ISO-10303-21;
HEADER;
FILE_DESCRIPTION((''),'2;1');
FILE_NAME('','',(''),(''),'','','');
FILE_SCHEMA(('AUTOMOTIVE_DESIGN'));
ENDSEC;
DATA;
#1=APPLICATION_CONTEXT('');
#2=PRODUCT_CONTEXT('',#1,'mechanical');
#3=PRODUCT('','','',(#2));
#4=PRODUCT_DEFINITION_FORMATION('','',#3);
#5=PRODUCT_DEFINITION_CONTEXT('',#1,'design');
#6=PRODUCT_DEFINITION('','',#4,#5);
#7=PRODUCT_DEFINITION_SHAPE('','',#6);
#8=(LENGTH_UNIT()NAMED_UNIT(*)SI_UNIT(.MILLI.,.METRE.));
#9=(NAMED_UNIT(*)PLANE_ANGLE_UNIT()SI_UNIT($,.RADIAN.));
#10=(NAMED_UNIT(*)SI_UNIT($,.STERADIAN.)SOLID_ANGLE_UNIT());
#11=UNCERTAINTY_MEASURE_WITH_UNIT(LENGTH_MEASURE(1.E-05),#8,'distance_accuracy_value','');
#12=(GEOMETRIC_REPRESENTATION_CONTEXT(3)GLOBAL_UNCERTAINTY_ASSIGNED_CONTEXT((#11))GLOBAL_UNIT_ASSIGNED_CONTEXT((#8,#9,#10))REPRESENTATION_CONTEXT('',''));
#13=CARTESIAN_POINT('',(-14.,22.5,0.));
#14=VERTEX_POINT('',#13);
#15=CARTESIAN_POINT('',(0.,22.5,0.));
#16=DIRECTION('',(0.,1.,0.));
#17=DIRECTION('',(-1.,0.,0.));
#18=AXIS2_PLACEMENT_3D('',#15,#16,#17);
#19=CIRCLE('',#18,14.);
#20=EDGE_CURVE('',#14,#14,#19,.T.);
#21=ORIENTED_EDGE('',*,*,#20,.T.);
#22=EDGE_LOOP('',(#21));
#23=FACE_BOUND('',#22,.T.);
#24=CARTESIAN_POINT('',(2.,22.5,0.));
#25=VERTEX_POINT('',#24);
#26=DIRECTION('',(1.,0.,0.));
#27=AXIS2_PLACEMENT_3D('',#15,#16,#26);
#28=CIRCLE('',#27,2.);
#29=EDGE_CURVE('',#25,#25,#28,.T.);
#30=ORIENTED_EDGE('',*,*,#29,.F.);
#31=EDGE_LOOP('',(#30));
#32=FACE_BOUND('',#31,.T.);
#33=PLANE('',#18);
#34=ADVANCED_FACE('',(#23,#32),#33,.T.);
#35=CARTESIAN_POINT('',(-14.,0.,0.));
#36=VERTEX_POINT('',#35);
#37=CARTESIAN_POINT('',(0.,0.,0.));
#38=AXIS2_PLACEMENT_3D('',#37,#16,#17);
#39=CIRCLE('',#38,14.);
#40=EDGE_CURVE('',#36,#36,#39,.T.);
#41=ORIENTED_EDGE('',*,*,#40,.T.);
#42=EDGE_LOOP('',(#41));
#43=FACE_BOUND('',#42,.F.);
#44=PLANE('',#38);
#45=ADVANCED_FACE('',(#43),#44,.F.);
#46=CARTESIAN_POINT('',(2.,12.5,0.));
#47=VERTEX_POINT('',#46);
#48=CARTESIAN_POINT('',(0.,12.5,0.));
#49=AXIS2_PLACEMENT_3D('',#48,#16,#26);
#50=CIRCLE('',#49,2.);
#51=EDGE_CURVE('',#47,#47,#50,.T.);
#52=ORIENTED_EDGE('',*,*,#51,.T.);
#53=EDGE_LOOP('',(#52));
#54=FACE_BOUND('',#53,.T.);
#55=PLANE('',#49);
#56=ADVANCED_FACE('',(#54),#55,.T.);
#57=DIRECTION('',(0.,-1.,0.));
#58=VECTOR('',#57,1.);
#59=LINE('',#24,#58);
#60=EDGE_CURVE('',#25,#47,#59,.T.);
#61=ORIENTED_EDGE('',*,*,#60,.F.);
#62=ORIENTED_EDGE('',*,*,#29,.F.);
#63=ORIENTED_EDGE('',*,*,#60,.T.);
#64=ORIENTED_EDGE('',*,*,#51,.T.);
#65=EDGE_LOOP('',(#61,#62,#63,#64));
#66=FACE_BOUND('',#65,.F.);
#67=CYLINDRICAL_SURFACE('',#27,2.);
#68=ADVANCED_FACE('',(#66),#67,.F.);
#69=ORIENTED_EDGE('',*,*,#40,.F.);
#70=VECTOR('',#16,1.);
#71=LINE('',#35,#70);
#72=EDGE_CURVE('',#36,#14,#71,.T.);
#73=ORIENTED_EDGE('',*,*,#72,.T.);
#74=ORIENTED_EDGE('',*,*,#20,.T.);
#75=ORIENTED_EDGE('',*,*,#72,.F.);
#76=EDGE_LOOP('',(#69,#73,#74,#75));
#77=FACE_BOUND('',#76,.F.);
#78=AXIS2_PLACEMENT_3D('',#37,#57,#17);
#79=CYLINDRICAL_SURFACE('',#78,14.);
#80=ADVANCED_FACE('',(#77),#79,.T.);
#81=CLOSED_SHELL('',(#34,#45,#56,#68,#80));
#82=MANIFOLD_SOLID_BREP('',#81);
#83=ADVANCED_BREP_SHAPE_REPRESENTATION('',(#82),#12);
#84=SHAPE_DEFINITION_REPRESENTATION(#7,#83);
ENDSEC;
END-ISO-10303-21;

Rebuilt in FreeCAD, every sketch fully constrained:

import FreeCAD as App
import Part
import Sketcher
from FreeCAD import Vector
Q = App.Units.Quantity

doc = App.newDocument("Part")
body = doc.addObject("PartDesign::Body", "Body")

# Sketch on XZ plane
sketch1 = body.newObject("Sketcher::SketchObject", "Sketch")
sketch1.AttachmentSupport = (doc.getObject("XZ_Plane"), [""])
sketch1.MapMode = "FlatFace"
sketch1.addGeometry(Part.Circle(Vector(0, 0, 0), Vector(0, 0, 1), 14), False)
sketch1.addConstraint([
    Sketcher.Constraint("Coincident", 0, 3, -1, 1),
    Sketcher.Constraint("Diameter", 0, Q("28 mm")),
])
pad1 = body.newObject("PartDesign::Pad", "Pad")
pad1.Profile = sketch1
pad1.Length = 22.5
pad1.Reversed = True

# Sketch on XZ plane
sketch2 = body.newObject("Sketcher::SketchObject", "Sketch001")
sketch2.AttachmentSupport = (doc.getObject("XZ_Plane"), [""])
sketch2.MapMode = "FlatFace"
sketch2.AttachmentOffset = App.Placement(Vector(0, 0, -22.5), App.Rotation())
sketch2.addGeometry(Part.Circle(Vector(0, 0, 0), Vector(0, 0, 1), 2), False)
sketch2.addConstraint([
    Sketcher.Constraint("Coincident", 0, 3, -1, 1),
    Sketcher.Constraint("Diameter", 0, Q("4 mm")),
])
pocket1 = body.newObject("PartDesign::Pocket", "Pocket")
pocket1.Profile = sketch2
pocket1.Length = 10
pocket1.Reversed = True

doc.recompute()
